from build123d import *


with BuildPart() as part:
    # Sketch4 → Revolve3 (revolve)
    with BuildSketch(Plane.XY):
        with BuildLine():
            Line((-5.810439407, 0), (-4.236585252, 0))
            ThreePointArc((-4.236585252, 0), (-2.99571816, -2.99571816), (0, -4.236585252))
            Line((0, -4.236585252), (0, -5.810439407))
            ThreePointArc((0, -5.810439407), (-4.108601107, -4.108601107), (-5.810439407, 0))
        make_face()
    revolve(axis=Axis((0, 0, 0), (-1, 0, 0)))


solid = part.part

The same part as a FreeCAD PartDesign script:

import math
import FreeCAD as App
import Part
import Sketcher

V = App.Vector

doc = App.newDocument("Part")
params = doc.addObject("Spreadsheet::Sheet", "Params")
for row, (alias, value) in enumerate([
    ("revolution_angle", "360 deg"),
], start=1):
    params.set(f"A{row}", alias)
    params.set(f"B{row}", "=" + value)
    params.setAlias(f"B{row}", alias)

body = doc.addObject("PartDesign::Body", "Body")

sketch1 = doc.addObject("Sketcher::SketchObject", "Sketch")
body.addObject(sketch1)
sketch1.AttachmentSupport = (doc.XY_Plane, [""])
sketch1.MapMode = "FlatFace"
sketch1.addGeometry([
    Part.LineSegment(V(-4.2, 0, 0), V(-5.8, 0, 0)),
    Part.ArcOfCircle(Part.Circle(V(0, 0, 0), V(0, 0, 1), 5.8), math.radians(180), math.radians(270)),
    Part.LineSegment(V(0, -5.8, 0), V(0, -4.2, 0)),
    Part.ArcOfCircle(Part.Circle(V(0, 0, 0), V(0, 0, 1), 4.2), math.radians(-180), math.radians(-90)),
], False)
sketch1.addConstraint([
    Sketcher.Constraint("Coincident", 0, 2, 1, 1),
    Sketcher.Constraint("Coincident", 1, 2, 2, 1),
    Sketcher.Constraint("Coincident", 2, 2, 3, 2),
    Sketcher.Constraint("Coincident", 3, 1, 0, 1),
    Sketcher.Constraint("Horizontal", 0),
    Sketcher.Constraint("Vertical", 2),
    Sketcher.Constraint("Coincident", 1, 3, -1, 1),
    Sketcher.Constraint("Coincident", 3, 3, -1, 1),
    Sketcher.Constraint("PointOnObject", 0, 2, -1),
    Sketcher.Constraint("PointOnObject", 1, 2, -2),
    Sketcher.Constraint("Radius", 1, 5.810439),
    Sketcher.Constraint("Radius", 3, 4.236585),
])
revolution = doc.addObject("PartDesign::Revolution", "Revolution")
body.addObject(revolution)
revolution.Profile = sketch1
revolution.ReferenceAxis = (sketch1, ["H_Axis"])
revolution.setExpression("Angle", "Params.revolution_angle")

doc.recompute()
